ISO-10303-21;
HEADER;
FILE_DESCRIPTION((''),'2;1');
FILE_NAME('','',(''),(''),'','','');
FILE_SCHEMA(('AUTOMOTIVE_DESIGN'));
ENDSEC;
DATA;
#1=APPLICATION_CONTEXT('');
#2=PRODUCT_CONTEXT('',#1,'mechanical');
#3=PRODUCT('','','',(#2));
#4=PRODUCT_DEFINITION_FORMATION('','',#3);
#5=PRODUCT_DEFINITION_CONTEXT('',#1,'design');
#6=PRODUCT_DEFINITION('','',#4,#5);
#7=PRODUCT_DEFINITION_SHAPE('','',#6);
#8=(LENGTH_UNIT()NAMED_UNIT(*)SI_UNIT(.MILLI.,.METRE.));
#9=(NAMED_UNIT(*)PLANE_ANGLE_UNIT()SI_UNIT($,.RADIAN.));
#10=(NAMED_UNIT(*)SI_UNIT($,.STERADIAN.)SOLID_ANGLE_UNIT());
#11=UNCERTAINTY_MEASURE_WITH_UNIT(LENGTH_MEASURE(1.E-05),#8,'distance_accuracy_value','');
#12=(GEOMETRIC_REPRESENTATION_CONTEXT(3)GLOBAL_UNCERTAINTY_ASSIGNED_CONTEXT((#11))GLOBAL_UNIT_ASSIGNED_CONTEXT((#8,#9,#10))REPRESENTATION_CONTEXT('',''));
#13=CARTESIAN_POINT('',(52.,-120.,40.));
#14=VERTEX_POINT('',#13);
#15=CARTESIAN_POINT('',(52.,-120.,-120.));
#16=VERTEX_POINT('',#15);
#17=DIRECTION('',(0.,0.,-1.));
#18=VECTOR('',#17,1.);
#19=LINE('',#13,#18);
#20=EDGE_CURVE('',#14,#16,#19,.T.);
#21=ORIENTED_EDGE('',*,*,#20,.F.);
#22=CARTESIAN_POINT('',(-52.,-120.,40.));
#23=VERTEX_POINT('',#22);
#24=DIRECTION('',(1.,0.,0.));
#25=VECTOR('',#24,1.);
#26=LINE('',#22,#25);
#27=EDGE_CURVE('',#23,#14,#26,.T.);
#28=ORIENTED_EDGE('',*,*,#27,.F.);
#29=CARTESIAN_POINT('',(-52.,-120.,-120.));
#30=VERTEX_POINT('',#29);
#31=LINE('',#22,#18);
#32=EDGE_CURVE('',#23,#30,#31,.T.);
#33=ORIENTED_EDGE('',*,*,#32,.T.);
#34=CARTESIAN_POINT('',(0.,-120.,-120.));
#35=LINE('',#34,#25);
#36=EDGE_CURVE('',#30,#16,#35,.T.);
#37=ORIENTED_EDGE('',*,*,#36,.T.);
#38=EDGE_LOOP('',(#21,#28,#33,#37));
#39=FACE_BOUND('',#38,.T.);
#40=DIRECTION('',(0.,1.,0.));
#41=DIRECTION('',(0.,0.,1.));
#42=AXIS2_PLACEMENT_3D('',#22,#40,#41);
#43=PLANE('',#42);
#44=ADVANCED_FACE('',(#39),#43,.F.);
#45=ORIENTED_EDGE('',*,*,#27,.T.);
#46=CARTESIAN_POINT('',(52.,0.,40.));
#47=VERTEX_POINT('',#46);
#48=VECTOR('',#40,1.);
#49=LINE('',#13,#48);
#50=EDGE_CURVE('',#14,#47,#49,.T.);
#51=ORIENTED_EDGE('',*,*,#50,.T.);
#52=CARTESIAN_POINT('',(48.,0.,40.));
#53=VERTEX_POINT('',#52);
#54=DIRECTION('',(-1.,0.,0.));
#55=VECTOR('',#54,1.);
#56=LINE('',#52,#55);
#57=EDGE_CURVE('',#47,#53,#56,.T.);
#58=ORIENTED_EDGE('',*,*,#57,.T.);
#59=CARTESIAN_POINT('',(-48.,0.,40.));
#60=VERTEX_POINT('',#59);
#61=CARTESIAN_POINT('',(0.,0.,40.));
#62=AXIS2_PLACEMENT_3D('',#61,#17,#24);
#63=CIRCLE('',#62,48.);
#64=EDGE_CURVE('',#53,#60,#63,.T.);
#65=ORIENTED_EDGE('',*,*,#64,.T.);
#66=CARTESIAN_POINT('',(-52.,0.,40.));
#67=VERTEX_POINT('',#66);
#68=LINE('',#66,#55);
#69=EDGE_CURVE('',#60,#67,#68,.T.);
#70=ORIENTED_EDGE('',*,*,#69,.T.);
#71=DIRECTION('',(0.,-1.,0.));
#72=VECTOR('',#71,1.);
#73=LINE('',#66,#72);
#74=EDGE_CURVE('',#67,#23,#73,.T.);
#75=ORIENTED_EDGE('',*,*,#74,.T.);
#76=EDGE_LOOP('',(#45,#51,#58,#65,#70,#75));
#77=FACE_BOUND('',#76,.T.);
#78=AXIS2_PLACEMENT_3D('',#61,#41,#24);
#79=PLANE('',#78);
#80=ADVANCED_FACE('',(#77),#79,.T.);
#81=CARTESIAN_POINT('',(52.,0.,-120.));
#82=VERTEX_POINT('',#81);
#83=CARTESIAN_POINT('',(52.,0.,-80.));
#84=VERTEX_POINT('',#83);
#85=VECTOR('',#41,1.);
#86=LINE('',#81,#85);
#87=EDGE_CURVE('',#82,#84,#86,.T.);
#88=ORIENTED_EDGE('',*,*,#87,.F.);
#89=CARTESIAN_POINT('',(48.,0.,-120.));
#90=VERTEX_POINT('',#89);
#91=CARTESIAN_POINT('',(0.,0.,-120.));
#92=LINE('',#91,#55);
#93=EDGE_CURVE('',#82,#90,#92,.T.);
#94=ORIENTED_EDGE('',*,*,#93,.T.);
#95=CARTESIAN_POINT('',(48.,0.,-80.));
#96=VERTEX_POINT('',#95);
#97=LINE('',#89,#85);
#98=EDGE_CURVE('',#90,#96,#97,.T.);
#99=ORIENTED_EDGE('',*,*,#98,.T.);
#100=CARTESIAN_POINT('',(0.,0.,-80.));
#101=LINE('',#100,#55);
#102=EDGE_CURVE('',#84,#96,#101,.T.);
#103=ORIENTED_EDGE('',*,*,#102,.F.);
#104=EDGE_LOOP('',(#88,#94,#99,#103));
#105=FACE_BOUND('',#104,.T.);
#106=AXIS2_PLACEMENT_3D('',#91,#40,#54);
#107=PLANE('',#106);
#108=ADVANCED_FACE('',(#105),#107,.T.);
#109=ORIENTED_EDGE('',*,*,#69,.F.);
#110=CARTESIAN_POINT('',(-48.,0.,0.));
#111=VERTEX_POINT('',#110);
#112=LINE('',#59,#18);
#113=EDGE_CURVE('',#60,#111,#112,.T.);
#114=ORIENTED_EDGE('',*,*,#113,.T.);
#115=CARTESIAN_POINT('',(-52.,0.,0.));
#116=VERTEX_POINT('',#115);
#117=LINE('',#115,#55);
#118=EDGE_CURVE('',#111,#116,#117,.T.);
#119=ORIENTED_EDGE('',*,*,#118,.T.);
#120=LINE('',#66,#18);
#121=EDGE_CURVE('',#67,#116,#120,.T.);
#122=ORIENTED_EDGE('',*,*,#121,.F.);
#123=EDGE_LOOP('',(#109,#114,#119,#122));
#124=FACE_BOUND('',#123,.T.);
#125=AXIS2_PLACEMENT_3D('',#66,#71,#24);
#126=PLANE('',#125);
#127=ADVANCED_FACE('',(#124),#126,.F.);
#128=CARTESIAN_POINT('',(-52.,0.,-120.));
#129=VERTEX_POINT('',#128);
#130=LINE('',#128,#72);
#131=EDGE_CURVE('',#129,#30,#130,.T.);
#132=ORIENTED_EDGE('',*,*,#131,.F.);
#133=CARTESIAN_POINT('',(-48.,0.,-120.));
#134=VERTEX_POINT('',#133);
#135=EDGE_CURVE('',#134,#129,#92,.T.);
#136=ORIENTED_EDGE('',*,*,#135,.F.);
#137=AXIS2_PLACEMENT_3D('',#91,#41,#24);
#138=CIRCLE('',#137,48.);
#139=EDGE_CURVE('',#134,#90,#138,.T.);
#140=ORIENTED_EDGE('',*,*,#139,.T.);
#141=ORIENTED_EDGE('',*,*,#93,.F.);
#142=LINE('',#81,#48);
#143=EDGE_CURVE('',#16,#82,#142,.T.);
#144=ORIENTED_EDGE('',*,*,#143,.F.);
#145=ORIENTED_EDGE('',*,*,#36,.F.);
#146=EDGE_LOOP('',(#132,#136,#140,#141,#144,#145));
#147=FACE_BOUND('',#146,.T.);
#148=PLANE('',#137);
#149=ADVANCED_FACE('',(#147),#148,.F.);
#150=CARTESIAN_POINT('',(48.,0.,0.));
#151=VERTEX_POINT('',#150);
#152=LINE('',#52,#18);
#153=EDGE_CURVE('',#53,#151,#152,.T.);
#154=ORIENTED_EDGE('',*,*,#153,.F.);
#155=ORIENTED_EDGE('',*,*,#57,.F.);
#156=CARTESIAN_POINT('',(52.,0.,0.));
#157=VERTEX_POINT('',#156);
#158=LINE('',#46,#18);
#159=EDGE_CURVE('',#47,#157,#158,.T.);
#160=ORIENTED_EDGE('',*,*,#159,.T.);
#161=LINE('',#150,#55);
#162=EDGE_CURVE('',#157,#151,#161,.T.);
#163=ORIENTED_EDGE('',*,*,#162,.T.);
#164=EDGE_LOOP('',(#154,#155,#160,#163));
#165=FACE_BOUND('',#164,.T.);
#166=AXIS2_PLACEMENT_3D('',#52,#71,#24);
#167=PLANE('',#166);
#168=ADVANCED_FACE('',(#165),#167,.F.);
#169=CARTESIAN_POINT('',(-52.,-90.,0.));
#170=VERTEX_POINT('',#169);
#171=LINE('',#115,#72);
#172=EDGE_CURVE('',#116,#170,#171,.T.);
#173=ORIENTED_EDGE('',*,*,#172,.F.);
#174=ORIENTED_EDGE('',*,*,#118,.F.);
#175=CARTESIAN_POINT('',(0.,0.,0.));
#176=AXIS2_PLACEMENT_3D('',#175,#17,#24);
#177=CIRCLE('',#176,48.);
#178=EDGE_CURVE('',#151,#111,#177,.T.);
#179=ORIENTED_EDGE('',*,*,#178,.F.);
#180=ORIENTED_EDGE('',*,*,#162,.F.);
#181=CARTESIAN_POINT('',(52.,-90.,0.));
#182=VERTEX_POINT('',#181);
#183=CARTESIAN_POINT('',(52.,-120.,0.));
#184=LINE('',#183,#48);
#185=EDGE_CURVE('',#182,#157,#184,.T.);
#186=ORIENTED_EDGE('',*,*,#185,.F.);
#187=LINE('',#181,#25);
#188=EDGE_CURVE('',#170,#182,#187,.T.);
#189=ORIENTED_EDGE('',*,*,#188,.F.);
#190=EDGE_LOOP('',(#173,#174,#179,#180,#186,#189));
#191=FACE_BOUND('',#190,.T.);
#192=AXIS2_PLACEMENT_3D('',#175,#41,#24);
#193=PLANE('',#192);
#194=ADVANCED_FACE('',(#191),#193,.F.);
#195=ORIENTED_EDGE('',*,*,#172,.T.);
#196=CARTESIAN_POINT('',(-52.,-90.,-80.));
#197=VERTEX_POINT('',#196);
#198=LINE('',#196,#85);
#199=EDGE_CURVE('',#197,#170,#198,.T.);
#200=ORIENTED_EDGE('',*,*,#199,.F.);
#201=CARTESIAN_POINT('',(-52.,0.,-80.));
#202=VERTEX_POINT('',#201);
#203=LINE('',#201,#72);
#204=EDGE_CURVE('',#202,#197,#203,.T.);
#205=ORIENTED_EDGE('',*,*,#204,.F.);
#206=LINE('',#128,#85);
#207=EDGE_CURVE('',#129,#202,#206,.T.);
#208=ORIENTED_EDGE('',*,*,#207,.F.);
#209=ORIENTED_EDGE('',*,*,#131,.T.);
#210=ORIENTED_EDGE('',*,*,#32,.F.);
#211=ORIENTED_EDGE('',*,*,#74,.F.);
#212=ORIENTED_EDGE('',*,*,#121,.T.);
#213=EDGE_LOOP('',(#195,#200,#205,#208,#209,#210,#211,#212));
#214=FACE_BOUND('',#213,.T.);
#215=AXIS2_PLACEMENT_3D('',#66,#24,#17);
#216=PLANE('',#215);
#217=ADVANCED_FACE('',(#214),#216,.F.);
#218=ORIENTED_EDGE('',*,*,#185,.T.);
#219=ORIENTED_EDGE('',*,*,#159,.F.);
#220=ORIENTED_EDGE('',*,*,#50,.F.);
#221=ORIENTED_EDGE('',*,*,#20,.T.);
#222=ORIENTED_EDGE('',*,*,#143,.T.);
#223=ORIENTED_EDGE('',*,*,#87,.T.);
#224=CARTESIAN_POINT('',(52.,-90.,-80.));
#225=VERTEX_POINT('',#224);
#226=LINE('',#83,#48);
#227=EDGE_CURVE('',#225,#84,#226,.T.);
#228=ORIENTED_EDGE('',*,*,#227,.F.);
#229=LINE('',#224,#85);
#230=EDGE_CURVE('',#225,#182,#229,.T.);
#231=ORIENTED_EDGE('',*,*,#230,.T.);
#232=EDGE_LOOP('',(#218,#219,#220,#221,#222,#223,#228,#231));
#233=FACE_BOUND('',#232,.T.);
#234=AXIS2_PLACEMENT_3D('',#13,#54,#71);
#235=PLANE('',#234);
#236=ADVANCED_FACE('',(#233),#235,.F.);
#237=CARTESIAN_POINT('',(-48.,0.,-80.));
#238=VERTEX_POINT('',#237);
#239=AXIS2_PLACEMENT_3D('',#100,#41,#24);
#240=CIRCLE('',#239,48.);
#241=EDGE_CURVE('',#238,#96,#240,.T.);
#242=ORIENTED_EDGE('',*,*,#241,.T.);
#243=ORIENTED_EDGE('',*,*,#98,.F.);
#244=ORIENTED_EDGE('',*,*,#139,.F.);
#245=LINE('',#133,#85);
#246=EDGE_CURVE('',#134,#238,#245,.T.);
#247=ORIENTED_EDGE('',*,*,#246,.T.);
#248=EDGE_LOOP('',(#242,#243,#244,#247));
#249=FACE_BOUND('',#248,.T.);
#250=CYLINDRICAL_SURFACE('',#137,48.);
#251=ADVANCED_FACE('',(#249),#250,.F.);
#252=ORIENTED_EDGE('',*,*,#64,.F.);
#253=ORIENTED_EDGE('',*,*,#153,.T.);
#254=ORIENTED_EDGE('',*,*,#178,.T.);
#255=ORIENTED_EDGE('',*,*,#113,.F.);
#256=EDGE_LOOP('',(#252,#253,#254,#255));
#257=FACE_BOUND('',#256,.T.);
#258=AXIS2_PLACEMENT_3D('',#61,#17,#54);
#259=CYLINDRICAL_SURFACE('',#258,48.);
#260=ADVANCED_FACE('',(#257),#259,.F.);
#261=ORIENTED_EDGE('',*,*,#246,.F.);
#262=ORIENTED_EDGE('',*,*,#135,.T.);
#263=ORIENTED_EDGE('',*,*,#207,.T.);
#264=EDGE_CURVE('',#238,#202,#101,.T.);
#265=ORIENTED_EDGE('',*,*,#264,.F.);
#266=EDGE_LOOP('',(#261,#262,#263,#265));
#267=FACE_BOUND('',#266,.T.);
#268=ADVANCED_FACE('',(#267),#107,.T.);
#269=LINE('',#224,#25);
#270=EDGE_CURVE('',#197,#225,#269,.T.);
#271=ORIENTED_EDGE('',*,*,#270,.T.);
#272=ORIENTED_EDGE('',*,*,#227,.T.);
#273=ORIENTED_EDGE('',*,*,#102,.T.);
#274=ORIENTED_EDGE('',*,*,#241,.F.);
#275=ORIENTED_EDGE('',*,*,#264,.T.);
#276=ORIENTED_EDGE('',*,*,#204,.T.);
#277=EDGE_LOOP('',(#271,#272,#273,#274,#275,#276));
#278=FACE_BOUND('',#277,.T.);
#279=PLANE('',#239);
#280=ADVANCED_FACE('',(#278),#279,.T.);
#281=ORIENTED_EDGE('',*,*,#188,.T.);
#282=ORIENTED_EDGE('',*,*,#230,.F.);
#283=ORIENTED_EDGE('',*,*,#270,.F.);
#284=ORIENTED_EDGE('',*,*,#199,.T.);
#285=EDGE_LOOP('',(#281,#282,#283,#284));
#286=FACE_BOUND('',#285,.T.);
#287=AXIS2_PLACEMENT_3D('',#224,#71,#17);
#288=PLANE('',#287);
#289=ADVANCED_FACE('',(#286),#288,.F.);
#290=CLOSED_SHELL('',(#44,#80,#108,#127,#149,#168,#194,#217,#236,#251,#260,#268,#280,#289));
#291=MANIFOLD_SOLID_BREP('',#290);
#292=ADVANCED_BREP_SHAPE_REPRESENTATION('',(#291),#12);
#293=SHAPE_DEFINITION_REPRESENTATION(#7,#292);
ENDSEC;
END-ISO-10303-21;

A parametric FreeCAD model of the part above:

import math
import FreeCAD as App
import Part
import Sketcher

V = App.Vector
Q = App.Units.Quantity

doc = App.newDocument("Part")
body = doc.addObject("PartDesign::Body", "Body")

# Sketch on XY plane
sketch1 = doc.addObject("Sketcher::SketchObject", "Sketch")
body.addObject(sketch1)
sketch1.AttachmentSupport = (doc.XY_Plane, [""])
sketch1.MapMode = "FlatFace"
sketch1.addGeometry([
    Part.LineSegment(V(-52, 0, 0), V(-52, -120, 0)),  # 0
    Part.LineSegment(V(-52, -120, 0), V(52, -120, 0)),  # 1
    Part.LineSegment(V(52, -120, 0), V(52, 0, 0)),  # 2
    Part.LineSegment(V(52, 0, 0), V(48, 0, 0)),  # 3
    Part.ArcOfCircle(Part.Circle(V(0, 0, 0), V(0, 0, 1), 48), math.radians(180), math.radians(360)),  # 4
    Part.LineSegment(V(-48, 0, 0), V(-52, 0, 0)),  # 5
], False)
sketch1.addConstraint([
    Sketcher.Constraint("Coincident", 0, 2, 1, 1),
    Sketcher.Constraint("Coincident", 1, 2, 2, 1),
    Sketcher.Constraint("Coincident", 2, 2, 3, 1),
    Sketcher.Constraint("Coincident", 3, 2, 4, 2),
    Sketcher.Constraint("Coincident", 4, 1, 5, 1),
    Sketcher.Constraint("Coincident", 5, 2, 0, 1),
    Sketcher.Constraint("Vertical", 0),
    Sketcher.Constraint("Horizontal", 1),
    Sketcher.Constraint("Vertical", 2),
    Sketcher.Constraint("Horizontal", 3),
    Sketcher.Constraint("Horizontal", 5),
    Sketcher.Constraint("Coincident", 4, 3, -1, 1),
    Sketcher.Constraint("Symmetric", 2, 2, 5, 2, -1, 1),
    Sketcher.Constraint("PointOnObject", 2, 2, -1),
    Sketcher.Constraint("Radius", 4, Q("48 mm")),
    Sketcher.Constraint("DistanceX", 1, 1, 1, 2, Q("104 mm")),
    Sketcher.Constraint("DistanceY", 0, 2, 0, 1, Q("120 mm")),
])
pad1 = doc.addObject("PartDesign::Pad", "Pad")
body.addObject(pad1)
pad1.Profile = sketch1
pad1.Length = 40

# Sketch on XY plane
sketch2 = doc.addObject("Sketcher::SketchObject", "Sketch001")
body.addObject(sketch2)
sketch2.AttachmentSupport = (doc.XY_Plane, [""])
sketch2.MapMode = "FlatFace"
sketch2.addGeometry([
    Part.LineSegment(V(52, -90, 0), V(52, -120, 0)),
    Part.LineSegment(V(52, -120, 0), V(-52, -120, 0)),
    Part.LineSegment(V(-52, -120, 0), V(-52, -90, 0)),
    Part.LineSegment(V(-52, -90, 0), V(52, -90, 0)),
], False)
sketch2.addConstraint([
    Sketcher.Constraint("Coincident", 0, 2, 1, 1),
    Sketcher.Constraint("Coincident", 1, 2, 2, 1),
    Sketcher.Constraint("Coincident", 2, 2, 3, 1),
    Sketcher.Constraint("Coincident", 3, 2, 0, 1),
    Sketcher.Constraint("Vertical", 0),
    Sketcher.Constraint("Horizontal", 1),
    Sketcher.Constraint("Vertical", 2),
    Sketcher.Constraint("Horizontal", 3),
    Sketcher.Constraint("DistanceX", 1, 2, 1, 1, Q("104 mm")),
    Sketcher.Constraint("DistanceY", 0, 2, 0, 1, Q("30 mm")),
    Sketcher.Constraint("DistanceX", -1, 1, 0, 2, Q("52 mm")),
    Sketcher.Constraint("DistanceY", 0, 2, -1, 1, Q("120 mm")),
])
pad2 = doc.addObject("PartDesign::Pad", "Pad001")
body.addObject(pad2)
pad2.Profile = sketch2
pad2.Length = 80
pad2.Reversed = True

# Sketch on XY plane
sketch3 = doc.addObject("Sketcher::SketchObject", "Sketch002")
body.addObject(sketch3)
sketch3.AttachmentSupport = (doc.XY_Plane, [""])
sketch3.MapMode = "FlatFace"
sketch3.AttachmentOffset = App.Placement(V(0, 0, -120), App.Rotation())
sketch3.addGeometry([
    Part.LineSegment(V(-52, 0, 0), V(-52, -120, 0)),  # 0
    Part.LineSegment(V(-52, -120, 0), V(52, -120, 0)),  # 1
    Part.LineSegment(V(52, -120, 0), V(52, 0, 0)),  # 2
    Part.LineSegment(V(52, 0, 0), V(48, 0, 0)),  # 3
    Part.ArcOfCircle(Part.Circle(V(0, 0, 0), V(0, 0, 1), 48), math.radians(180), math.radians(360)),  # 4
    Part.LineSegment(V(-48, 0, 0), V(-52, 0, 0)),  # 5
], False)
sketch3.addConstraint([
    Sketcher.Constraint("Coincident", 0, 2, 1, 1),
    Sketcher.Constraint("Coincident", 1, 2, 2, 1),
    Sketcher.Constraint("Coincident", 2, 2, 3, 1),
    Sketcher.Constraint("Coincident", 3, 2, 4, 2),
    Sketcher.Constraint("Coincident", 4, 1, 5, 1),
    Sketcher.Constraint("Coincident", 5, 2, 0, 1),
    Sketcher.Constraint("Vertical", 0),
    Sketcher.Constraint("Horizontal", 1),
    Sketcher.Constraint("Vertical", 2),
    Sketcher.Constraint("Horizontal", 3),
    Sketcher.Constraint("Horizontal", 5),
    Sketcher.Constraint("Coincident", 4, 3, -1, 1),
    Sketcher.Constraint("Symmetric", 2, 2, 5, 2, -1, 1),
    Sketcher.Constraint("PointOnObject", 2, 2, -1),
    Sketcher.Constraint("Radius", 4, Q("48 mm")),
    Sketcher.Constraint("DistanceX", 1, 1, 1, 2, Q("104 mm")),
    Sketcher.Constraint("DistanceY", 0, 2, 0, 1, Q("120 mm")),
])
pad3 = doc.addObject("PartDesign::Pad", "Pad002")
body.addObject(pad3)
pad3.Profile = sketch3
pad3.Length = 40

doc.recompute()
